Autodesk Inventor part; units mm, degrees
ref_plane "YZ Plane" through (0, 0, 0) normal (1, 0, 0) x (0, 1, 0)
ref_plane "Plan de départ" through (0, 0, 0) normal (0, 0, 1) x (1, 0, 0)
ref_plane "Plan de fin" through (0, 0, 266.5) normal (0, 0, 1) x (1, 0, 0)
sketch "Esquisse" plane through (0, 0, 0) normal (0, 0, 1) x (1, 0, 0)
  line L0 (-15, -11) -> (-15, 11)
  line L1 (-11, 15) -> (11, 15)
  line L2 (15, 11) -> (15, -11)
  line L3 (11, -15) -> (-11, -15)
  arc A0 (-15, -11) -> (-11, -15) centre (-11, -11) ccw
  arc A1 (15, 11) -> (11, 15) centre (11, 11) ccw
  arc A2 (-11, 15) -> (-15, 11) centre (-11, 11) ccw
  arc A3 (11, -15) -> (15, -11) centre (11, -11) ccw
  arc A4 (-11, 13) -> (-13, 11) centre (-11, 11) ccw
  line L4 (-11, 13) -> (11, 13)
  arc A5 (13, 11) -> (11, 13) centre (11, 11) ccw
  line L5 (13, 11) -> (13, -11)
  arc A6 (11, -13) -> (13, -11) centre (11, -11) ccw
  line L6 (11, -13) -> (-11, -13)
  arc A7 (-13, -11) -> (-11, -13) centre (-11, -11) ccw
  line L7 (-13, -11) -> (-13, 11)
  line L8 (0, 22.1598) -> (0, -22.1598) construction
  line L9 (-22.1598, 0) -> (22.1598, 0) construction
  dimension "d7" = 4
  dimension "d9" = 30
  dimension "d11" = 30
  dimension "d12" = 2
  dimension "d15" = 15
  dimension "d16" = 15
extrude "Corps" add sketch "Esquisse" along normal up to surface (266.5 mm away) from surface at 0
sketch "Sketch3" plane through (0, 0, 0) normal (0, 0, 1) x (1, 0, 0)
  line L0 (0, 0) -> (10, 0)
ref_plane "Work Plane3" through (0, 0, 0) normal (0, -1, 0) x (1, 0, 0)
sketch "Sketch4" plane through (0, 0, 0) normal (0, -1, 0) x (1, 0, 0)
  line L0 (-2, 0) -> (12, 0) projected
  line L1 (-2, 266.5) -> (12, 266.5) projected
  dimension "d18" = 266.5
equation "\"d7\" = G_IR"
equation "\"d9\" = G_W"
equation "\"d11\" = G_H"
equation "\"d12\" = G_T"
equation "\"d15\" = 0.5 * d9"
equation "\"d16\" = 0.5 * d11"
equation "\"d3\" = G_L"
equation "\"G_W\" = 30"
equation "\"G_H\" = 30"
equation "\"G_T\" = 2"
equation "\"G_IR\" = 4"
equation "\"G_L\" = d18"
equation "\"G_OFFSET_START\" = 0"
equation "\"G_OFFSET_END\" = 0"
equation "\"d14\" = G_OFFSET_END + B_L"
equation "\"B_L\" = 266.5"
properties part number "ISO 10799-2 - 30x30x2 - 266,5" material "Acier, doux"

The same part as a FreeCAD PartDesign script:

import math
import FreeCAD as App
import Part
import Sketcher
Q = App.Units.Quantity

doc = App.newDocument("Part")
body = doc.addObject("PartDesign::Body", "Body")

sketch1 = body.newObject("Sketcher::SketchObject", "Sketch")
sketch1.AttachmentSupport = (doc.getObject("XY_Plane"), [""])
sketch1.MapMode = "FlatFace"
sketch1.addGeometry([
    Part.LineSegment(App.Vector(-15, 11, 0), App.Vector(-15, -11, 0)),
    Part.ArcOfCircle(Part.Circle(App.Vector(-11, -11, 0), App.Vector(0, 0, 1), 4), math.radians(180), math.radians(270)),
    Part.LineSegment(App.Vector(-11, -15, 0), App.Vector(11, -15, 0)),
    Part.ArcOfCircle(Part.Circle(App.Vector(11, -11, 0), App.Vector(0, 0, 1), 4), math.radians(-90), math.radians(0)),
    Part.LineSegment(App.Vector(15, -11, 0), App.Vector(15, 11, 0)),
    Part.ArcOfCircle(Part.Circle(App.Vector(11, 11, 0), App.Vector(0, 0, 1), 4), math.radians(0), math.radians(90)),
    Part.LineSegment(App.Vector(11, 15, 0), App.Vector(-11, 15, 0)),
    Part.ArcOfCircle(Part.Circle(App.Vector(-11, 11, 0), App.Vector(0, 0, 1), 4), math.radians(90), math.radians(180)),
    Part.ArcOfCircle(Part.Circle(App.Vector(-11, 11, 0), App.Vector(0, 0, 1), 2), math.radians(90), math.radians(180)),
    Part.LineSegment(App.Vector(-11, 13, 0), App.Vector(11, 13, 0)),
    Part.ArcOfCircle(Part.Circle(App.Vector(11, 11, 0), App.Vector(0, 0, 1), 2), math.radians(0), math.radians(90)),
    Part.LineSegment(App.Vector(13, 11, 0), App.Vector(13, -11, 0)),
    Part.ArcOfCircle(Part.Circle(App.Vector(11, -11, 0), App.Vector(0, 0, 1), 2), math.radians(-90), math.radians(0)),
    Part.LineSegment(App.Vector(11, -13, 0), App.Vector(-11, -13, 0)),
    Part.ArcOfCircle(Part.Circle(App.Vector(-11, -11, 0), App.Vector(0, 0, 1), 2), math.radians(180), math.radians(270)),
    Part.LineSegment(App.Vector(-13, -11, 0), App.Vector(-13, 11, 0)),
], False)
sketch1.addConstraint([
    Sketcher.Constraint("Tangent", 0, 2, 1, 1),
    Sketcher.Constraint("Tangent", 1, 2, 2, 1),
    Sketcher.Constraint("Tangent", 2, 2, 3, 1),
    Sketcher.Constraint("Tangent", 3, 2, 4, 1),
    Sketcher.Constraint("Tangent", 4, 2, 5, 1),
    Sketcher.Constraint("Tangent", 5, 2, 6, 1),
    Sketcher.Constraint("Tangent", 6, 2, 7, 1),
    Sketcher.Constraint("Tangent", 7, 2, 0, 1),
    Sketcher.Constraint("Tangent", 8, 1, 9, 1),
    Sketcher.Constraint("Tangent", 9, 2, 10, 2),
    Sketcher.Constraint("Tangent", 10, 1, 11, 1),
    Sketcher.Constraint("Tangent", 11, 2, 12, 2),
    Sketcher.Constraint("Tangent", 12, 1, 13, 1),
    Sketcher.Constraint("Tangent", 13, 2, 14, 2),
    Sketcher.Constraint("Tangent", 14, 1, 15, 1),
    Sketcher.Constraint("Tangent", 15, 2, 8, 2),
    Sketcher.Constraint("Vertical", 0),
    Sketcher.Constraint("Horizontal", 2),
    Sketcher.Constraint("Vertical", 4),
    Sketcher.Constraint("Horizontal", 6),
    Sketcher.Constraint("Horizontal", 9),
    Sketcher.Constraint("Vertical", 11),
    Sketcher.Constraint("Horizontal", 13),
    Sketcher.Constraint("Vertical", 15),
    Sketcher.Constraint("Coincident", 8, 3, 7, 3),
    Sketcher.Constraint("Coincident", 10, 3, 5, 3),
    Sketcher.Constraint("Coincident", 12, 3, 3, 3),
    Sketcher.Constraint("Equal", 1, 3),
    Sketcher.Constraint("Equal", 3, 5),
    Sketcher.Constraint("Equal", 5, 7),
    Sketcher.Constraint("Equal", 12, 14),
    Sketcher.Constraint("Symmetric", 1, 3, 5, 3, -1, 1),
    Sketcher.Constraint("Equal", 13, 0),
    Sketcher.Constraint("Radius", 1, Q("4 mm")),
    Sketcher.Constraint("Radius", 8, Q("2 mm")),
    Sketcher.Constraint("DistanceX", 0, 2, -1, 1, Q("15 mm")),
])
pad1 = body.newObject("PartDesign::Pad", "Pad")
pad1.Profile = sketch1
pad1.Length = 266.5

doc.recompute()
